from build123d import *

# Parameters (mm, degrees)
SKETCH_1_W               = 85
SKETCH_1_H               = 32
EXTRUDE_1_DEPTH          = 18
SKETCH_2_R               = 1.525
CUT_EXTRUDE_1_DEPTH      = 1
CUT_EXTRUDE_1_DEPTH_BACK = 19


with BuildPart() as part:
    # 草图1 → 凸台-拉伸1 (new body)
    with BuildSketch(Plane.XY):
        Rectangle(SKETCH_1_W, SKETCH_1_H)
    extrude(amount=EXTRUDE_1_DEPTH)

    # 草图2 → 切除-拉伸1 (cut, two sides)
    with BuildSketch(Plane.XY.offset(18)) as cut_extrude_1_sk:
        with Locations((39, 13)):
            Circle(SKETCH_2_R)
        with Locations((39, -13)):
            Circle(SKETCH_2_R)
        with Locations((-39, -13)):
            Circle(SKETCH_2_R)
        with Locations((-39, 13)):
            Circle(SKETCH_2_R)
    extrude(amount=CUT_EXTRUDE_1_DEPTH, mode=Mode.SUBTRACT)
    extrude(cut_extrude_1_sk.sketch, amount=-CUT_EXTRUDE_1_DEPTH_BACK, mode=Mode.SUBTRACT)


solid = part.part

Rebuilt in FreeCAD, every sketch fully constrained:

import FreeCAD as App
import Part
import Sketcher
Q = App.Units.Quantity


def add_polygon(sketch, points):
    """Adds a closed chain of lines whose ends are joined by coincident constraints."""
    first, n = sketch.GeometryCount, len(points)
    for a, b in zip(points, points[1:] + points[:1]):
        sketch.addGeometry(Part.LineSegment(App.Vector(*a, 0), App.Vector(*b, 0)), False)
    for i in range(n):
        sketch.addConstraint(Sketcher.Constraint("Coincident", first + i, 2, first + (i + 1) % n, 1))

doc = App.newDocument("Part")
body = doc.addObject("PartDesign::Body", "Body")

sketch1 = body.newObject("Sketcher::SketchObject", "Sketch")
sketch1.AttachmentSupport = (doc.getObject("XY_Plane"), [""])
sketch1.MapMode = "FlatFace"
add_polygon(sketch1, [(-42, 16), (-42, -16), (42, -16), (42, 16)])
sketch1.addConstraint([
    Sketcher.Constraint("Vertical", 0),
    Sketcher.Constraint("Horizontal", 1),
    Sketcher.Constraint("Vertical", 2),
    Sketcher.Constraint("Horizontal", 3),
    Sketcher.Constraint("Symmetric", 0, 2, 2, 2, -1, 1),
    Sketcher.Constraint("DistanceX", 1, 1, 1, 2, Q("85 mm")),
    Sketcher.Constraint("DistanceY", 0, 2, 0, 1, Q("32 mm")),
])
pad1 = body.newObject("PartDesign::Pad", "Pad")
pad1.Profile = sketch1
pad1.Length = 18

sketch2 = body.newObject("Sketcher::SketchObject", "Sketch001")
sketch2.AttachmentSupport = (doc.getObject("XY_Plane"), [""])
sketch2.MapMode = "FlatFace"
sketch2.AttachmentOffset = App.Placement(App.Vector(0, 0, 18), App.Rotation())
sketch2.addGeometry([
    Part.Circle(App.Vector(39, 13, 0), App.Vector(0, 0, 1), 1.5),
    Part.Circle(App.Vector(39, -13, 0), App.Vector(0, 0, 1), 1.5),
    Part.Circle(App.Vector(-39, -13, 0), App.Vector(0, 0, 1), 1.5),
    Part.Circle(App.Vector(-39, 13, 0), App.Vector(0, 0, 1), 1.5),
], False)
sketch2.addConstraint([
    Sketcher.Constraint("Equal", 0, 1),
    Sketcher.Constraint("Equal", 1, 2),
    Sketcher.Constraint("Equal", 2, 3),
    Sketcher.Constraint("Symmetric", 0, 3, 2, 3, -1, 1),
    Sketcher.Constraint("Symmetric", 1, 3, 3, 3, -1, 1),
    Sketcher.Constraint("Symmetric", 1, 3, 2, 3, -2),
    Sketcher.Constraint("Diameter", 0, Q("3.05 mm")),
    Sketcher.Constraint("DistanceX", -1, 1, 0, 3, Q("39 mm")),
    Sketcher.Constraint("DistanceY", -1, 1, 0, 3, Q("13 mm")),
])
pocket1 = body.newObject("PartDesign::Pocket", "Pocket")
pocket1.Profile = sketch2
pocket1.Type = "ThroughAll"
pocket1.Midplane = True

doc.recompute()
